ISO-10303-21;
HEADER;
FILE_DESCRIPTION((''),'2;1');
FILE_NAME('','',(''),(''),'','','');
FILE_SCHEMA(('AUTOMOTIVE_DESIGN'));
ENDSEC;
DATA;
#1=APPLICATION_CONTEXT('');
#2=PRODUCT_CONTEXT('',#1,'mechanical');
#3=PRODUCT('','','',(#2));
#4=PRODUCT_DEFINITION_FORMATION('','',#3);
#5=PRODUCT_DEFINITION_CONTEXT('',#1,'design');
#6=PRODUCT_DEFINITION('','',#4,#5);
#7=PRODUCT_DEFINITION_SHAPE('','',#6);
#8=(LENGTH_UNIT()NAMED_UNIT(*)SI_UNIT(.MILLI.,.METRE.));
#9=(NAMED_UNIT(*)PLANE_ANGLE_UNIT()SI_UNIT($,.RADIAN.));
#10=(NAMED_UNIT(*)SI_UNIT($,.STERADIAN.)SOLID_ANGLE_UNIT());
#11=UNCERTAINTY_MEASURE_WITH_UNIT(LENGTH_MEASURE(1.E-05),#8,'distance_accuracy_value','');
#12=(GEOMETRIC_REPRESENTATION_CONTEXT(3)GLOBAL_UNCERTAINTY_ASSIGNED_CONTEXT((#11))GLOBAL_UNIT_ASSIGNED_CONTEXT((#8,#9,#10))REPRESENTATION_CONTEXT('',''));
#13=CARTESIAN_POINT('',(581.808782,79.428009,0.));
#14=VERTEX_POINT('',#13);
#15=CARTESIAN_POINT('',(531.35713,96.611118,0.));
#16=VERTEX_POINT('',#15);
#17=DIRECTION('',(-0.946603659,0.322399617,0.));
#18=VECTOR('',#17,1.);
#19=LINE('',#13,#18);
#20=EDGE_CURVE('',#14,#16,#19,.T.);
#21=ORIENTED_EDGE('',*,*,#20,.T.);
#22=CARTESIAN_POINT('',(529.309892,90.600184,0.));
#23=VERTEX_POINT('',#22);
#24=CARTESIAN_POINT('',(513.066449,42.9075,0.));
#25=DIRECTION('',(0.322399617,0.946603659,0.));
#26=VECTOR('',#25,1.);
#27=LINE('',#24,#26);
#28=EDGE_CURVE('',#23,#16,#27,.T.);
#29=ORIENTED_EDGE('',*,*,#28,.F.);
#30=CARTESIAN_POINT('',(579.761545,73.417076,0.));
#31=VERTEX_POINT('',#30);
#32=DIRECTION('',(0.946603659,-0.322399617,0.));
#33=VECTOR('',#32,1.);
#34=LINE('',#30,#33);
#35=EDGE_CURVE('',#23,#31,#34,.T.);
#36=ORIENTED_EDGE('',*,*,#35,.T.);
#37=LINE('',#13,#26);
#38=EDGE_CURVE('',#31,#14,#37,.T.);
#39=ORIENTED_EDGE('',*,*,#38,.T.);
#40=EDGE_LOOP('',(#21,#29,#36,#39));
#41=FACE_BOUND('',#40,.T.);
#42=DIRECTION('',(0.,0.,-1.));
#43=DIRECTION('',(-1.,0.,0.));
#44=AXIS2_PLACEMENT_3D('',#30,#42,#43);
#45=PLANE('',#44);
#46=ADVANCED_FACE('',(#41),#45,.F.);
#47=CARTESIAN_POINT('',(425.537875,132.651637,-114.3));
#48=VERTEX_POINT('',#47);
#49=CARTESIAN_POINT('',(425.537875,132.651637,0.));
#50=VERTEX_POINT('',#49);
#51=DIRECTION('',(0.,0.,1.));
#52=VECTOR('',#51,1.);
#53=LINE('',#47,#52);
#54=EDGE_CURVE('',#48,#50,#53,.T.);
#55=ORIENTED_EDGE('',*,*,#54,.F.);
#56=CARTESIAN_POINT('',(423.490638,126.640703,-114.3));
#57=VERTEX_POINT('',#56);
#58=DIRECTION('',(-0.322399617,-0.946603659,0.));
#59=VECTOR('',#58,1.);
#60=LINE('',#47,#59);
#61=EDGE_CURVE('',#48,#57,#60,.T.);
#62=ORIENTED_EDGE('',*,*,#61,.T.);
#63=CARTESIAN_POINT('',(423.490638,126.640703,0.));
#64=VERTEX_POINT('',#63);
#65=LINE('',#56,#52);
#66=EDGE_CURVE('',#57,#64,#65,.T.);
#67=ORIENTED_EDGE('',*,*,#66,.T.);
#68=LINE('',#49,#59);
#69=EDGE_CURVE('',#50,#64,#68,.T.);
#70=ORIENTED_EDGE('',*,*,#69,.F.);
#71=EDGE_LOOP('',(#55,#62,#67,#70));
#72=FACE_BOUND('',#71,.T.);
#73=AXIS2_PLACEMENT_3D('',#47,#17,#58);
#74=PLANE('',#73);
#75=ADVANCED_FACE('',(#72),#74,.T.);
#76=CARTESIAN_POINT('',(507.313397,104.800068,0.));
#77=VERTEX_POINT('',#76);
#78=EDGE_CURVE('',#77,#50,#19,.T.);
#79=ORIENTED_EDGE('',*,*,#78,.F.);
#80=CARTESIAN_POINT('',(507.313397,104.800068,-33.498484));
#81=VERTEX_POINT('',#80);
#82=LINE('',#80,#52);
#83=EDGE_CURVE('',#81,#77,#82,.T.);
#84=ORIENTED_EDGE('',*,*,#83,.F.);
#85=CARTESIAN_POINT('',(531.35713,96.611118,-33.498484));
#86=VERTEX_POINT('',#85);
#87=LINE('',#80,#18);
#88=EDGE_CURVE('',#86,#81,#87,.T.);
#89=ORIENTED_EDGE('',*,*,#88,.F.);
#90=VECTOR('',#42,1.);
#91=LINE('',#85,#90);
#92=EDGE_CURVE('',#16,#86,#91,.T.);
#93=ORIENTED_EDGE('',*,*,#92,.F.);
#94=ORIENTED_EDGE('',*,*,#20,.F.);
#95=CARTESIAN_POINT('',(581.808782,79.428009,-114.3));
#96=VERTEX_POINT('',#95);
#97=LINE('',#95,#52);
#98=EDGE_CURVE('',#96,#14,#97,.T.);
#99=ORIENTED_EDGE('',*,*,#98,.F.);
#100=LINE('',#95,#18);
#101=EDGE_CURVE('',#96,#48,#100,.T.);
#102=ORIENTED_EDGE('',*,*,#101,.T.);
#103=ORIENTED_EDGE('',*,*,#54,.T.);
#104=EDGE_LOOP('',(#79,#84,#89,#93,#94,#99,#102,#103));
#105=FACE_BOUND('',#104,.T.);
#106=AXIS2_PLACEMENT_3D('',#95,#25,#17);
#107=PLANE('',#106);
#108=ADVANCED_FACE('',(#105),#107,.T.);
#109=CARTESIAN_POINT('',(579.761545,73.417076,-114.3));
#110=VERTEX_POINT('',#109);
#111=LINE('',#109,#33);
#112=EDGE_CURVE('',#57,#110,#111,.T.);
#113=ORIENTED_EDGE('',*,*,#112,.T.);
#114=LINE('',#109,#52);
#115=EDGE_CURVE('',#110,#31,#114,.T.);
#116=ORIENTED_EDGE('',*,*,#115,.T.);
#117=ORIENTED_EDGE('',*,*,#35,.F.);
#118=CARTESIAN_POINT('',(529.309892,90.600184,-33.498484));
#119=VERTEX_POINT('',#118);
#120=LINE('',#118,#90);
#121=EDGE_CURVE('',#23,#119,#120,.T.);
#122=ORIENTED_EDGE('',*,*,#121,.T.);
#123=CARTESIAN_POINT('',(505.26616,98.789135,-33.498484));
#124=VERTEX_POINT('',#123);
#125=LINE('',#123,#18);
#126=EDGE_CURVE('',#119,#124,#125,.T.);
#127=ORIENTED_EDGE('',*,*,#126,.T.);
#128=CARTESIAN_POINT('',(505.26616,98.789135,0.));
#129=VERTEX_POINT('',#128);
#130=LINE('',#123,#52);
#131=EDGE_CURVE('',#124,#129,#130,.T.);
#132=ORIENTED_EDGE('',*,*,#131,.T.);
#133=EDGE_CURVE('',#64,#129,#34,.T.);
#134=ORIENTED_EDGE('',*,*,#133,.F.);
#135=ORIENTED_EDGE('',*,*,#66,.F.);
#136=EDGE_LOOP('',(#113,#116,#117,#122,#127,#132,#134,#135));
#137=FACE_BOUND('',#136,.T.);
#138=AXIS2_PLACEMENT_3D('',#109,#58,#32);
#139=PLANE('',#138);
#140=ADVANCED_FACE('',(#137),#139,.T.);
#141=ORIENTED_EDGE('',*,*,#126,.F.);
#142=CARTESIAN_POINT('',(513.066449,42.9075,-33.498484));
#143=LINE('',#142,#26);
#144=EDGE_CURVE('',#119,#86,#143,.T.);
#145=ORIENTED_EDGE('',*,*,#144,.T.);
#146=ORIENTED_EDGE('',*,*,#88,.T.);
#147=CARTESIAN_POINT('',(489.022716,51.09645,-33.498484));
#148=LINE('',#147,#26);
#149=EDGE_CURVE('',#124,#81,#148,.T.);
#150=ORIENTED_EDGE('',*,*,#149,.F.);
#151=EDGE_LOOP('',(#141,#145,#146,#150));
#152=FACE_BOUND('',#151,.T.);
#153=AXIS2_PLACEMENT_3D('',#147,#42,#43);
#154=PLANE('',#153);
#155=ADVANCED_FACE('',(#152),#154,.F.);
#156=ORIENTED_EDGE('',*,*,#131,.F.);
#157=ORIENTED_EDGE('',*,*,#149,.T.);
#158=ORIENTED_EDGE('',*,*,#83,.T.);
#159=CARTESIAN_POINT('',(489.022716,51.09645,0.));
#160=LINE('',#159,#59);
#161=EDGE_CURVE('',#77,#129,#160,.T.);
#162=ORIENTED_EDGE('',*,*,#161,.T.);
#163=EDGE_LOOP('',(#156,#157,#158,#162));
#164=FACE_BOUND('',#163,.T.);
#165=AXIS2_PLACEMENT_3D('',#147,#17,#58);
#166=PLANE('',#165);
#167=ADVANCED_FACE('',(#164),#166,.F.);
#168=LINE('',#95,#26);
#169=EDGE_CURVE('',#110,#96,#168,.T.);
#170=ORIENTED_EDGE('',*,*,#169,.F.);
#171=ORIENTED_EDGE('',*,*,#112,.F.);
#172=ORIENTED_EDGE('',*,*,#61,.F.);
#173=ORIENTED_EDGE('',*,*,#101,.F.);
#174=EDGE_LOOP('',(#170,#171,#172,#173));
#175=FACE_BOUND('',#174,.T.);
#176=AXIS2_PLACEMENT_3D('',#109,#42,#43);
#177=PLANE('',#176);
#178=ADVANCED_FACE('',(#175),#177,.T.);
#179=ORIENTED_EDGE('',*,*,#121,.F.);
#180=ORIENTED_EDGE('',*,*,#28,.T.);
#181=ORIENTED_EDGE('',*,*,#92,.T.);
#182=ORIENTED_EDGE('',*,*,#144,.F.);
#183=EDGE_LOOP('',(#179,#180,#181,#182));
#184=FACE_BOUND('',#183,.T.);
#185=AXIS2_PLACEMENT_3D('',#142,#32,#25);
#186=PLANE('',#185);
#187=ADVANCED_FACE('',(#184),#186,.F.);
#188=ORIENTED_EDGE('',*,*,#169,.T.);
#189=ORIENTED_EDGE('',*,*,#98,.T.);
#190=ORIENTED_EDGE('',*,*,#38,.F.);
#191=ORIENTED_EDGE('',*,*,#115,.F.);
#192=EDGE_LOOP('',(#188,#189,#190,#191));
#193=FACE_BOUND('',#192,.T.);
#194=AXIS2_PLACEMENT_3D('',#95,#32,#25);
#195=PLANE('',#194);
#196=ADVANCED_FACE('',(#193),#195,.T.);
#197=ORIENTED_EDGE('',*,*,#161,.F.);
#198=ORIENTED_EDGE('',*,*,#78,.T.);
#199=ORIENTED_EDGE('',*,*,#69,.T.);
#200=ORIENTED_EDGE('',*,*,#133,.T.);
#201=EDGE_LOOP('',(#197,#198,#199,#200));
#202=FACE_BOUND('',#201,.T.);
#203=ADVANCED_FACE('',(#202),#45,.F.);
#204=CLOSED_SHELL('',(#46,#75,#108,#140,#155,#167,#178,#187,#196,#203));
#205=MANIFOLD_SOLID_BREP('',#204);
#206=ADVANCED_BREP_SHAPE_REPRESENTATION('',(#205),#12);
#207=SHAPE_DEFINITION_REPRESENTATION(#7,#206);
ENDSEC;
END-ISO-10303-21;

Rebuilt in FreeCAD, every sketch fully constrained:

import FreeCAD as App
import Part
import Sketcher
Q = App.Units.Quantity


def add_polygon(sketch, points):
    """Adds a closed chain of lines whose ends are joined by coincident constraints."""
    first, n = sketch.GeometryCount, len(points)
    for a, b in zip(points, points[1:] + points[:1]):
        sketch.addGeometry(Part.LineSegment(App.Vector(*a, 0), App.Vector(*b, 0)), False)
    for i in range(n):
        sketch.addConstraint(Sketcher.Constraint("Coincident", first + i, 2, first + (i + 1) % n, 1))

doc = App.newDocument("Part")
body = doc.addObject("PartDesign::Body", "Body")

sketch1 = body.newObject("Sketcher::SketchObject", "Sketch")
sketch1.AttachmentSupport = (doc.getObject("XY_Plane"), [""])
sketch1.MapMode = "FlatFace"
add_polygon(sketch1, [(581.808782, 79.428009), (425.537875, 132.651637), (423.490638, 126.640703), (579.761545, 73.417076)])
sketch1.addConstraint([
    Sketcher.Constraint("Perpendicular", 0, 1),
    Sketcher.Constraint("Perpendicular", 1, 2),
    Sketcher.Constraint("Perpendicular", 2, 3),
    Sketcher.Constraint("Distance", 1, Q("0.25 in")),
    Sketcher.Constraint("DistanceX", 1, 2, 0, 2, Q("0.0805999 in")),
    Sketcher.Constraint("Distance", 0, 165.08589),
    Sketcher.Constraint("DistanceY", -1, 1, 3, 2, 79.428009),
    Sketcher.Constraint("DistanceX", -1, 1, 0, 2, 425.537875),
])
pad1 = body.newObject("PartDesign::Pad", "Pad")
pad1.Profile = sketch1
pad1.Length = Q("4.5 in")
pad1.Reversed = True

sketch2 = body.newObject("Sketcher::SketchObject", "Sketch001")
sketch2.Placement = App.Placement(App.Vector(84.714295, 248.731255, 0), App.Rotation(App.Vector(0.946603659, -0.322399617, 0), App.Vector(0, 0, -1), App.Vector(0.322399617, 0.946603659, 0), "ZXY"))
add_polygon(sketch2, [(446.437216, 33.498484), (446.437216, -7.298388), (471.837216, -7.298388), (471.837216, 33.498484)])
sketch2.addConstraint([
    Sketcher.Constraint("Vertical", 0),
    Sketcher.Constraint("Horizontal", 1),
    Sketcher.Constraint("Vertical", 2),
    Sketcher.Constraint("Horizontal", 3),
    Sketcher.Constraint("DistanceX", 1, 1, 1, 2, Q("1 in")),
    Sketcher.Constraint("DistanceY", 0, 2, 0, 1, 40.796872),
    Sketcher.Constraint("DistanceY", 0, 2, -1, 1, 7.298388),
    Sketcher.Constraint("DistanceX", -1, 1, 0, 2, 446.437216),
])
pocket1 = body.newObject("PartDesign::Pocket", "Pocket")
pocket1.Profile = sketch2
pocket1.Type = "UpToFirst"

doc.recompute()
